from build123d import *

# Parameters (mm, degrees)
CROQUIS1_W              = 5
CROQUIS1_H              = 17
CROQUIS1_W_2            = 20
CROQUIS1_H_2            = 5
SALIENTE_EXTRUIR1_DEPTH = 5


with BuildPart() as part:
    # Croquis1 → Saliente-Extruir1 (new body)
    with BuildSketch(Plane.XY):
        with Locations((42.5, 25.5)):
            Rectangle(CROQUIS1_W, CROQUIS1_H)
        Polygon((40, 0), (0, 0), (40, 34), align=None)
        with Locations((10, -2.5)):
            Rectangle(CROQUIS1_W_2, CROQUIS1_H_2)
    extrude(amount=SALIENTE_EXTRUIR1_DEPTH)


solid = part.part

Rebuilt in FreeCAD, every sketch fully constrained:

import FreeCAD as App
import Part
import Sketcher
from FreeCAD import Vector

doc = App.newDocument("Part")
body = doc.addObject("PartDesign::Body", "Body")

# Sketch on XY plane
sketch1 = doc.addObject("Sketcher::SketchObject", "Sketch")
body.addObject(sketch1)
sketch1.AttachmentSupport = (doc.XY_Plane, [""])
sketch1.MapMode = "FlatFace"
sketch1.addGeometry(Part.LineSegment(Vector(40, 17, 0), Vector(45, 17, 0)), False)
sketch1.addGeometry(Part.LineSegment(Vector(45, 17, 0), Vector(45, 34, 0)), False)
sketch1.addGeometry(Part.LineSegment(Vector(45, 34, 0), Vector(40, 34, 0)), False)
sketch1.addGeometry(Part.LineSegment(Vector(40, 34, 0), Vector(0, 0, 0)), False)
sketch1.addGeometry(Part.LineSegment(Vector(0, 0, 0), Vector(0, -5, 0)), False)
sketch1.addGeometry(Part.LineSegment(Vector(0, -5, 0), Vector(20, -5, 0)), False)
sketch1.addGeometry(Part.LineSegment(Vector(20, -5, 0), Vector(20, 0, 0)), False)
sketch1.addGeometry(Part.LineSegment(Vector(20, 0, 0), Vector(40, 0, 0)), False)
sketch1.addGeometry(Part.LineSegment(Vector(40, 0, 0), Vector(40, 17, 0)), False)
sketch1.addConstraint(Sketcher.Constraint("Coincident", 0, 2, 1, 1))
sketch1.addConstraint(Sketcher.Constraint("Coincident", 1, 2, 2, 1))
sketch1.addConstraint(Sketcher.Constraint("Coincident", 2, 2, 3, 1))
sketch1.addConstraint(Sketcher.Constraint("Coincident", 3, 2, 4, 1))
sketch1.addConstraint(Sketcher.Constraint("Coincident", 4, 2, 5, 1))
sketch1.addConstraint(Sketcher.Constraint("Coincident", 5, 2, 6, 1))
sketch1.addConstraint(Sketcher.Constraint("Coincident", 6, 2, 7, 1))
sketch1.addConstraint(Sketcher.Constraint("Coincident", 7, 2, 8, 1))
sketch1.addConstraint(Sketcher.Constraint("Coincident", 8, 2, 0, 1))
sketch1.addConstraint(Sketcher.Constraint("Horizontal", 0))
sketch1.addConstraint(Sketcher.Constraint("Vertical", 1))
sketch1.addConstraint(Sketcher.Constraint("Horizontal", 2))
sketch1.addConstraint(Sketcher.Constraint("Vertical", 4))
sketch1.addConstraint(Sketcher.Constraint("Horizontal", 5))
sketch1.addConstraint(Sketcher.Constraint("Vertical", 6))
sketch1.addConstraint(Sketcher.Constraint("Horizontal", 7))
sketch1.addConstraint(Sketcher.Constraint("Vertical", 8))
sketch1.addConstraint(Sketcher.Constraint("Coincident", 3, 2, -1, 1))
sketch1.addConstraint(Sketcher.Constraint("PointOnObject", 6, 2, -1))
sketch1.addConstraint(Sketcher.Constraint("Vertical", 2, 2, 7, 2))
sketch1.addConstraint(Sketcher.Constraint("Equal", 5, 7))
sketch1.addConstraint(Sketcher.Constraint("Equal", 2, 4))
sketch1.addConstraint(Sketcher.Constraint("Equal", 1, 8))
sketch1.addConstraint(Sketcher.Constraint("DistanceX", 0, 1, 0, 2, 5.0))
sketch1.addConstraint(Sketcher.Constraint("DistanceX", 5, 1, 5, 2, 20.0))
sketch1.addConstraint(Sketcher.Constraint("DistanceY", 1, 1, 1, 2, 17.0))
pad1 = doc.addObject("PartDesign::Pad", "Pad")
body.addObject(pad1)
pad1.Profile = sketch1
pad1.Length = 5

doc.recompute()
